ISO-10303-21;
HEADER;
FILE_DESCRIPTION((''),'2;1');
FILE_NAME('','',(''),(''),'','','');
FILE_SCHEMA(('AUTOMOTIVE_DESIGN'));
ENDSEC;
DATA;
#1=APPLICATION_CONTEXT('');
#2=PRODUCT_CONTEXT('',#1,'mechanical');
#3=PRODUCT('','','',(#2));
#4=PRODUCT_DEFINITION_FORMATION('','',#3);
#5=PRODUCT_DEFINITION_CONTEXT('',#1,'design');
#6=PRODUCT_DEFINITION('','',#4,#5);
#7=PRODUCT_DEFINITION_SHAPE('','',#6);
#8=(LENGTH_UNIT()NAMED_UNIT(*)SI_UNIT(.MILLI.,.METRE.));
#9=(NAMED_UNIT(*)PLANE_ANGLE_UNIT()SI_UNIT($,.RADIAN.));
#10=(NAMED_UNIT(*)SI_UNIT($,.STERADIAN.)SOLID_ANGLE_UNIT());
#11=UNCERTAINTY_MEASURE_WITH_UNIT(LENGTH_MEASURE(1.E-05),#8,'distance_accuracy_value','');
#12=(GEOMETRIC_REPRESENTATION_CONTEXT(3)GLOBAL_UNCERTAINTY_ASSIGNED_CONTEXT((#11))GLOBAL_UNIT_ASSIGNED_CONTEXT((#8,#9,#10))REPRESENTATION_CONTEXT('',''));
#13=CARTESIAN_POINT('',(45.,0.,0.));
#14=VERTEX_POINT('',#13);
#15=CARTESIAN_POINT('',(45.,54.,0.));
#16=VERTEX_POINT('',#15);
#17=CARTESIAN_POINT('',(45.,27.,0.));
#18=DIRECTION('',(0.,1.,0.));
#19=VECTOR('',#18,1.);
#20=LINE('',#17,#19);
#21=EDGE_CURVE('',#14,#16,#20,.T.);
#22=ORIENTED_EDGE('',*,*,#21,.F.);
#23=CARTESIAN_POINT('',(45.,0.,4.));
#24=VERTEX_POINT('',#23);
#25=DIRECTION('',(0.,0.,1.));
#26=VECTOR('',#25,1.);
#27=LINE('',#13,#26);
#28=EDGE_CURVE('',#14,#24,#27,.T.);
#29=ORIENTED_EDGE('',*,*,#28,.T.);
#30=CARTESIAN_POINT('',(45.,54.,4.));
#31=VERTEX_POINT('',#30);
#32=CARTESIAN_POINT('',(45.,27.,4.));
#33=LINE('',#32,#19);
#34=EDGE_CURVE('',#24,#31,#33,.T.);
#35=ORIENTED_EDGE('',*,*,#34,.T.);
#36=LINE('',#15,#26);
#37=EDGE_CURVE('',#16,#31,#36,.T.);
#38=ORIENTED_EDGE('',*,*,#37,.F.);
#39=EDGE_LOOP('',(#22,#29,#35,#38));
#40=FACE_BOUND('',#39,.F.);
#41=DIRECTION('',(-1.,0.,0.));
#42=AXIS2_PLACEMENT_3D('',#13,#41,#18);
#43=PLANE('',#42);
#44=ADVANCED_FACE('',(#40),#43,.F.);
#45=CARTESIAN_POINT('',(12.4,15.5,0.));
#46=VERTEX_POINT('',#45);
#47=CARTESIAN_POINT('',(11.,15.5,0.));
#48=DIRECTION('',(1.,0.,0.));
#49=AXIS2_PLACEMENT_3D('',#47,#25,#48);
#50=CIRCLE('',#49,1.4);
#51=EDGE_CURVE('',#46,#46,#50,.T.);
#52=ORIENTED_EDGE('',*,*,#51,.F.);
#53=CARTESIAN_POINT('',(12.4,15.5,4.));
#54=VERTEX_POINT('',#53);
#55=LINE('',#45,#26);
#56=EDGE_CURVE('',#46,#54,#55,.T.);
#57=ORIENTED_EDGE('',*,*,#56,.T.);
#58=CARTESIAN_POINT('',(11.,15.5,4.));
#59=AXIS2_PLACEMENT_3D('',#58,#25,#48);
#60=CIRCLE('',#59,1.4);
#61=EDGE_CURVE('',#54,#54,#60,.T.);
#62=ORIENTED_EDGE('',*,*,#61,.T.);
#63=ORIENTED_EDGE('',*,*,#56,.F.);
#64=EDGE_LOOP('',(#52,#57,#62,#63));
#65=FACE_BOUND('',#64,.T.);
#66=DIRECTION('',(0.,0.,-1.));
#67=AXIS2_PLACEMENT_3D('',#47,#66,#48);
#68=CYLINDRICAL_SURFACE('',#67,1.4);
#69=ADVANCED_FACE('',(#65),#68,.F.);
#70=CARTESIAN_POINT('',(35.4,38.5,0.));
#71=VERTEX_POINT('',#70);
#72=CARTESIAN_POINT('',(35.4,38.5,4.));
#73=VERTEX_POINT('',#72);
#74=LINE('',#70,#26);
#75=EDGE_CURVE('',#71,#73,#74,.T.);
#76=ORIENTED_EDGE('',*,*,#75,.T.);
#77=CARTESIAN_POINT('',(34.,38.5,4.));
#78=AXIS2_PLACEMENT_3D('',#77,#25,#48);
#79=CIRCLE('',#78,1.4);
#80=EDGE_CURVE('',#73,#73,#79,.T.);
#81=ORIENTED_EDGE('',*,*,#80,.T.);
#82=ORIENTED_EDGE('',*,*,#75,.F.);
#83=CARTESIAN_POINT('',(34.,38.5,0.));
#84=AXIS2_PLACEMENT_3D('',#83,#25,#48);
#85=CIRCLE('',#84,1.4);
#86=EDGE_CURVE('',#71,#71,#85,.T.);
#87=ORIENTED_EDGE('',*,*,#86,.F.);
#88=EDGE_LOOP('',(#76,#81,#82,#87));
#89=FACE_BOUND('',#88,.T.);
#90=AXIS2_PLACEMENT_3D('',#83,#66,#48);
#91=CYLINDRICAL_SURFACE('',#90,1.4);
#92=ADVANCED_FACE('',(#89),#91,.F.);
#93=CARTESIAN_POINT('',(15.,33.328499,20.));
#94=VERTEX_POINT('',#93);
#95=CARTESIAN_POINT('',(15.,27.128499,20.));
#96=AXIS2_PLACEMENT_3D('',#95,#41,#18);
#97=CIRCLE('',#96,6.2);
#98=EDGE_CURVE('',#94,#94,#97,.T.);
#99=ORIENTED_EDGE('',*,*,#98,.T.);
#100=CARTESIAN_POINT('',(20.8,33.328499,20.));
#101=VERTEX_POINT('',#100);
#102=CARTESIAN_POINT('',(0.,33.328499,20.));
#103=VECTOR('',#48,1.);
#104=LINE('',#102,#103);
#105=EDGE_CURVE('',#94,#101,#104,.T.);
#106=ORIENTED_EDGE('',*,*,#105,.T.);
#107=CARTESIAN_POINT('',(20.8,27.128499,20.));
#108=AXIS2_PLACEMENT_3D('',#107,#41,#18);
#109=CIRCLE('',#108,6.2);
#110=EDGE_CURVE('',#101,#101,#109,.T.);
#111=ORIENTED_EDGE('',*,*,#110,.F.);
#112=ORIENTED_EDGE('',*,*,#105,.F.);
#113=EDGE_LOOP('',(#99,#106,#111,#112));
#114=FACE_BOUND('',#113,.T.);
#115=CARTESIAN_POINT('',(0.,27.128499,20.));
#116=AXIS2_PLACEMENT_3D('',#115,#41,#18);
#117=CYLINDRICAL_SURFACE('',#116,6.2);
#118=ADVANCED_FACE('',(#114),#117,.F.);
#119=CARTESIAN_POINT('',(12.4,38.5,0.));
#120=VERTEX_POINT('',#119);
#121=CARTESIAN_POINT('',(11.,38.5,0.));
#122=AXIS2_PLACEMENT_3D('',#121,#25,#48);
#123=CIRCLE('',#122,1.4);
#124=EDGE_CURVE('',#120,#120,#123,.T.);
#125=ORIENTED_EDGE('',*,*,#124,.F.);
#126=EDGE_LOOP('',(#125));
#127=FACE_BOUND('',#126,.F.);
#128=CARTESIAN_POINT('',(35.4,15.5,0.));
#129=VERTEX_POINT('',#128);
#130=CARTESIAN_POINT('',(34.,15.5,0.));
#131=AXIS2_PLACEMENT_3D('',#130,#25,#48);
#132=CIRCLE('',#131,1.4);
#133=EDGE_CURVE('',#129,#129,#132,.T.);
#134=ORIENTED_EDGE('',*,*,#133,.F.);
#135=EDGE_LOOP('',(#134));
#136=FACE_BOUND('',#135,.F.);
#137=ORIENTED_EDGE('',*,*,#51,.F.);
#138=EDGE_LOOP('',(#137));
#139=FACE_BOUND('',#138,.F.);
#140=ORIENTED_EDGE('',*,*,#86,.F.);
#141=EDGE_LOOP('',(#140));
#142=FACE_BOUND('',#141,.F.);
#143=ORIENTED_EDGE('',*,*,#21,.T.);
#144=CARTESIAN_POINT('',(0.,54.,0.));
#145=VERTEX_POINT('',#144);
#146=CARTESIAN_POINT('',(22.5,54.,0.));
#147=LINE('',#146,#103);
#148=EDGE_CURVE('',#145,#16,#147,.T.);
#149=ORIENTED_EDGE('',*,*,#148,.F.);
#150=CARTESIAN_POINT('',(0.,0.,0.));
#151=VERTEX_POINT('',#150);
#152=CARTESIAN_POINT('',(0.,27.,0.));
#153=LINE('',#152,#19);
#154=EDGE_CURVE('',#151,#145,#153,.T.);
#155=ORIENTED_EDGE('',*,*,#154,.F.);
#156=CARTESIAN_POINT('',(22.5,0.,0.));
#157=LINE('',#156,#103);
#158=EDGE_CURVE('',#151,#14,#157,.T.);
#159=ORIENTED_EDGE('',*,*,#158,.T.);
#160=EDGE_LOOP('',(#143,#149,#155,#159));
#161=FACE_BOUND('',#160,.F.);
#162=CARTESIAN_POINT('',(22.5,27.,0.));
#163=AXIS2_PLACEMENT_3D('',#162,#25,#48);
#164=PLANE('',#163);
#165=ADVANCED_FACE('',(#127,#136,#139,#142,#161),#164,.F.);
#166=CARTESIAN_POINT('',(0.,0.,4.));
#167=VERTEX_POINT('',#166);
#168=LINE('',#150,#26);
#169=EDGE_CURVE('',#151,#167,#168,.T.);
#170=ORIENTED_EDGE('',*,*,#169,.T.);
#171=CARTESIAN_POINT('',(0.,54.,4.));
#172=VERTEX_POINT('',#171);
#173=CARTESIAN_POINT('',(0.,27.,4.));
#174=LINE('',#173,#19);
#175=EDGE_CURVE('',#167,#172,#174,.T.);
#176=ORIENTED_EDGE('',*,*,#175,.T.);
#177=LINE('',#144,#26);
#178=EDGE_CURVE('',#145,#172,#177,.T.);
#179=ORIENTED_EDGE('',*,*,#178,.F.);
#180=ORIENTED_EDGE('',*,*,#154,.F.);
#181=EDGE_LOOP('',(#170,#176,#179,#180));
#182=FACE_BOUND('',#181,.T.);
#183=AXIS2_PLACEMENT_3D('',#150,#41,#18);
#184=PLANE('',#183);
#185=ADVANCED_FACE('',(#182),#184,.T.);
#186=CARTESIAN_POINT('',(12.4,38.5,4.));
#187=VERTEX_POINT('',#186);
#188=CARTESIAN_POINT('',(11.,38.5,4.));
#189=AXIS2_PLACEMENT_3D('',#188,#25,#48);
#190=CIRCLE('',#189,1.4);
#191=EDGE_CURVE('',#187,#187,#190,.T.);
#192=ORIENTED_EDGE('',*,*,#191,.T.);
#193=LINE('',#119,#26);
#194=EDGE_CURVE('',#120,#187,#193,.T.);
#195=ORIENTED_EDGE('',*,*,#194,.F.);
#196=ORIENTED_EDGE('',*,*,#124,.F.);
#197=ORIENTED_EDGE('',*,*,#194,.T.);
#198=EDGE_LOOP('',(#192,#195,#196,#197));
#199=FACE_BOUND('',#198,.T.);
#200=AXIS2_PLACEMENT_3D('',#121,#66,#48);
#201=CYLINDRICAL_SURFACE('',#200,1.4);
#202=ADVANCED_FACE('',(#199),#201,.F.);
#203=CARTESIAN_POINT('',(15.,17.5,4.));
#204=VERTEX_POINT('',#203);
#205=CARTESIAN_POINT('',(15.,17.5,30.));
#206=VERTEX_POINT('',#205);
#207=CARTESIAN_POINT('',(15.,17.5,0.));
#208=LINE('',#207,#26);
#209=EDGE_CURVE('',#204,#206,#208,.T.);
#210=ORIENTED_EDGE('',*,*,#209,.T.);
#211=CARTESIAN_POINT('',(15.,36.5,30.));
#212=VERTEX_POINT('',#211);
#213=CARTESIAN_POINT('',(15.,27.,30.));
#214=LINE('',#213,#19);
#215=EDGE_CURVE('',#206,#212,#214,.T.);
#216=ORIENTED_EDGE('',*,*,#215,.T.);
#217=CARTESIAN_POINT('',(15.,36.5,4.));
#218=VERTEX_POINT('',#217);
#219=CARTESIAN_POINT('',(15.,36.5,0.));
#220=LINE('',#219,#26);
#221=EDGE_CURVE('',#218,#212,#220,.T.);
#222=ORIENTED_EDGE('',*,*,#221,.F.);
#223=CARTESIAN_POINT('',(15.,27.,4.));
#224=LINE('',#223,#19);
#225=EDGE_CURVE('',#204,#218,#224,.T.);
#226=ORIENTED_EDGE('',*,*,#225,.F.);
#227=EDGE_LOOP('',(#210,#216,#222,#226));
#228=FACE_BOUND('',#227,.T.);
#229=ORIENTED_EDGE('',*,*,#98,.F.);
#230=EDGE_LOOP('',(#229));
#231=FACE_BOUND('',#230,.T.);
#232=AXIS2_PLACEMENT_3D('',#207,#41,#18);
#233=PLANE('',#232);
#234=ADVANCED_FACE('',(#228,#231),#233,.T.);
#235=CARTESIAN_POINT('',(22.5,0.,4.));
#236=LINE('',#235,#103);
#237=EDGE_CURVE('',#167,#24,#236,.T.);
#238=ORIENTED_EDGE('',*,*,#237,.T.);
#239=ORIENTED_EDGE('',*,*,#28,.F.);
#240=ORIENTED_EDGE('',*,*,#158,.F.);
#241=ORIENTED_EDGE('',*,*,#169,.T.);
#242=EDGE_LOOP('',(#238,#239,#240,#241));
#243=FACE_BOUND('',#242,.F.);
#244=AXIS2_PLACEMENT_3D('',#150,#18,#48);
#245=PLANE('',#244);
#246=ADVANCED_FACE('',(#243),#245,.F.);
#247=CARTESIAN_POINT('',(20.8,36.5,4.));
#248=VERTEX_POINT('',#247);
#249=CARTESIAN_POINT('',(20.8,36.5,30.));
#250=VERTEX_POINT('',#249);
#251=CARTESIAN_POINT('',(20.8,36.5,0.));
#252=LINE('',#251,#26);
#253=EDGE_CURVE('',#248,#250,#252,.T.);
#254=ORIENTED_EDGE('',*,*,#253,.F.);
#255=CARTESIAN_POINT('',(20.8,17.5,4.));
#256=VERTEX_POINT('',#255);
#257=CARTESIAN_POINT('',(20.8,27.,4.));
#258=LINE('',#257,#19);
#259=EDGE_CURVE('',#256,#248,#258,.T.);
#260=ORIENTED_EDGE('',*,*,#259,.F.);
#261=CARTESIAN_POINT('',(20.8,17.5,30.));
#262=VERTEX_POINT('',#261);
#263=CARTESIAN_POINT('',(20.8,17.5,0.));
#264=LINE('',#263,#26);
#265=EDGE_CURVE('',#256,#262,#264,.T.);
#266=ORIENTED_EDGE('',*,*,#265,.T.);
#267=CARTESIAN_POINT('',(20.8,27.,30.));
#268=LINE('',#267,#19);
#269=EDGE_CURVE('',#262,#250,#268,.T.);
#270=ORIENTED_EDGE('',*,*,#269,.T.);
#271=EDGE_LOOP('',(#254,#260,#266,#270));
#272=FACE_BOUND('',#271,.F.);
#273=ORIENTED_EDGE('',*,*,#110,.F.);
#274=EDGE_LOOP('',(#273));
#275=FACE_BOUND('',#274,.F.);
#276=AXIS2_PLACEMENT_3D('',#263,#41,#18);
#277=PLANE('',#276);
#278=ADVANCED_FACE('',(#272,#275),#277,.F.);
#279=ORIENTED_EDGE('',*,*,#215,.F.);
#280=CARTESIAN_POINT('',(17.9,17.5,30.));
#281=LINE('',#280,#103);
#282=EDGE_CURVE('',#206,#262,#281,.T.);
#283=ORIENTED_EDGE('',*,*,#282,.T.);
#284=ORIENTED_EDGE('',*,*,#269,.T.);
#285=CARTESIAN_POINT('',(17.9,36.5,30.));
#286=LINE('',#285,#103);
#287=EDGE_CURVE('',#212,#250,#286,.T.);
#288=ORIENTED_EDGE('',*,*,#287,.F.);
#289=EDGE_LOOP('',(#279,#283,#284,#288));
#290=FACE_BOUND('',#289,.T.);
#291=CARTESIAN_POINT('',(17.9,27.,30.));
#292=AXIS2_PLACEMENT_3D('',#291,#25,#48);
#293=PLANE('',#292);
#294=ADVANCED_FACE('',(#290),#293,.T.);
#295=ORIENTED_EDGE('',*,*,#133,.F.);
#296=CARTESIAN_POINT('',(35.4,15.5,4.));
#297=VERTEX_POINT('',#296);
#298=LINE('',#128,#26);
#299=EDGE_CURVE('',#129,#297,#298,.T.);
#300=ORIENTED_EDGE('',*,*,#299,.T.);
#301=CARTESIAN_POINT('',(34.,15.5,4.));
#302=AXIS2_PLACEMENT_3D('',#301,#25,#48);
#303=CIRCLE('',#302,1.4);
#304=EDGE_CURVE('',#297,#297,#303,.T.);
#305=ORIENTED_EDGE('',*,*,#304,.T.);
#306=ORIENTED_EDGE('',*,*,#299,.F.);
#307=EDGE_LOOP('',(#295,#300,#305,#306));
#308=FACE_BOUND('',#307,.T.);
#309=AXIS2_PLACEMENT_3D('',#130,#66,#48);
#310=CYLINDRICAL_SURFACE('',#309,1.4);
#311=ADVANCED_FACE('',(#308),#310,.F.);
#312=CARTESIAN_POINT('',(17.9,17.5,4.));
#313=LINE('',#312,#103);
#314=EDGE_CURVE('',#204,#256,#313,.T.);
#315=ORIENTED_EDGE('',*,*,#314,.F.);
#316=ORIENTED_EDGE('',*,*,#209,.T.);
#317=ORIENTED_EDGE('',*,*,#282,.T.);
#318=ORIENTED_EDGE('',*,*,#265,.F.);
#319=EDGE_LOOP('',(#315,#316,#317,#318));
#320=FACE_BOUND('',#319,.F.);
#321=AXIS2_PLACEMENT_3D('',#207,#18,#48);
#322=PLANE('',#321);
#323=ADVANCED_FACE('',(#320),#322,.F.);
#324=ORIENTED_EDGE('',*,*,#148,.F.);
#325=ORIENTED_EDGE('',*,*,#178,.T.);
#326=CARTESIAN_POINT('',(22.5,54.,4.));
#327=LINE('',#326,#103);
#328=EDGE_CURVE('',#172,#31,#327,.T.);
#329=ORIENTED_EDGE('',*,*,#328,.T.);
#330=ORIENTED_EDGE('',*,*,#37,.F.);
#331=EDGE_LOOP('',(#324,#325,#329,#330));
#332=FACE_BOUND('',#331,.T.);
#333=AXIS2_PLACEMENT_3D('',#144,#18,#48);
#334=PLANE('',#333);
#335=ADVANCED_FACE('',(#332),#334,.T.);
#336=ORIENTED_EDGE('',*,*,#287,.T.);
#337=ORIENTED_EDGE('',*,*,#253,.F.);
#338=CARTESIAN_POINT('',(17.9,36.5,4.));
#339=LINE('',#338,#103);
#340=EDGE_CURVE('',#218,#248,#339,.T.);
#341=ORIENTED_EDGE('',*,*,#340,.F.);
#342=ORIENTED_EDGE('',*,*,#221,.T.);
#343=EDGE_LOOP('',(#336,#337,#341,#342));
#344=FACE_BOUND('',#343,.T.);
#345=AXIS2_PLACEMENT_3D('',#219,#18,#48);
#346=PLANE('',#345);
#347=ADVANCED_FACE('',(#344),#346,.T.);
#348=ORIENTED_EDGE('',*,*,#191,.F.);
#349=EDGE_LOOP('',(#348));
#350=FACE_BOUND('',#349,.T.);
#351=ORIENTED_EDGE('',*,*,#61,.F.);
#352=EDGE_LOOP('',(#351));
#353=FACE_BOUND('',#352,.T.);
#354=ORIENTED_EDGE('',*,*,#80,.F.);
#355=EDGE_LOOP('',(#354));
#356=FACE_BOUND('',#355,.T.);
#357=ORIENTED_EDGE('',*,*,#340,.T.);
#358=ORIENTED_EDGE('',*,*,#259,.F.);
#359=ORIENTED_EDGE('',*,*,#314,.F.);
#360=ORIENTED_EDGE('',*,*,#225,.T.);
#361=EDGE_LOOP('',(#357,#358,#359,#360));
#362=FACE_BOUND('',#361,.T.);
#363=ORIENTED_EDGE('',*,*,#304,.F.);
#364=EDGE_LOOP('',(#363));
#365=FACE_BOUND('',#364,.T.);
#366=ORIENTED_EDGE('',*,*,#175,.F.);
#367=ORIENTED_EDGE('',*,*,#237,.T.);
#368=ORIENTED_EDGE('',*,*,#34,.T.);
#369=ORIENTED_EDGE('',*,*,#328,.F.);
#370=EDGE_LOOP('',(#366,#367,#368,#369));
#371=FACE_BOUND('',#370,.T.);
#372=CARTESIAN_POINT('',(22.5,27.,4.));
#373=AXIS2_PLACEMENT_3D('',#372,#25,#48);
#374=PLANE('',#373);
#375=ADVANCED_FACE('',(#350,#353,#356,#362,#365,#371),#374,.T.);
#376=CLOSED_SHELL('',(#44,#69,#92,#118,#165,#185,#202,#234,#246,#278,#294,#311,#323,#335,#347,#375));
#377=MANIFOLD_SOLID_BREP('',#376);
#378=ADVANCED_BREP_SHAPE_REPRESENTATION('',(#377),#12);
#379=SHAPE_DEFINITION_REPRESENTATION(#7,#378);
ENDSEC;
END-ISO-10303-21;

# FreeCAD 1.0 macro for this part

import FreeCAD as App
import Part
import Sketcher
from FreeCAD import Vector
Q = App.Units.Quantity


def add_polygon(sketch, points):
    """Adds a closed chain of lines whose ends are joined by coincident constraints."""
    first, n = sketch.GeometryCount, len(points)
    for a, b in zip(points, points[1:] + points[:1]):
        sketch.addGeometry(Part.LineSegment(App.Vector(*a, 0), App.Vector(*b, 0)), False)
    for i in range(n):
        sketch.addConstraint(Sketcher.Constraint("Coincident", first + i, 2, first + (i + 1) % n, 1))

doc = App.newDocument("Part")
body = doc.addObject("PartDesign::Body", "Body")

sketch1 = body.newObject("Sketcher::SketchObject", "Sketch")
sketch1.AttachmentSupport = (doc.getObject("XY_Plane"), [""])
sketch1.MapMode = "FlatFace"
add_polygon(sketch1, [(0, 54), (0, 0), (45, 0), (45, 54)])
sketch1.addGeometry(Part.Circle(Vector(11, 15.5, 0), Vector(0, 0, 1), 1.4), False)
sketch1.addGeometry(Part.Circle(Vector(34, 15.5, 0), Vector(0, 0, 1), 1.4), False)
add_polygon(sketch1, [(20.8, 17.5), (15, 17.5), (15, 36.5), (20.8, 36.5)])
sketch1.addGeometry(Part.Circle(Vector(11, 38.5, 0), Vector(0, 0, 1), 1.4), False)
sketch1.addGeometry(Part.Circle(Vector(34, 38.5, 0), Vector(0, 0, 1), 1.4), False)
sketch1.addConstraint([
    Sketcher.Constraint("Vertical", 0),
    Sketcher.Constraint("Horizontal", 1),
    Sketcher.Constraint("Vertical", 2),
    Sketcher.Constraint("Horizontal", 3),
    Sketcher.Constraint("Horizontal", 6),
    Sketcher.Constraint("Vertical", 7),
    Sketcher.Constraint("Horizontal", 8),
    Sketcher.Constraint("Vertical", 9),
    Sketcher.Constraint("Coincident", 0, 2, -1, 1),
    Sketcher.Constraint("Equal", 4, 5),
    Sketcher.Constraint("Equal", 5, 10),
    Sketcher.Constraint("Equal", 10, 11),
    Sketcher.Constraint("Horizontal", 4, 3, 5, 3),
    Sketcher.Constraint("Horizontal", 10, 3, 11, 3),
    Sketcher.Constraint("Vertical", 4, 3, 10, 3),
    Sketcher.Constraint("Vertical", 5, 3, 11, 3),
    Sketcher.Constraint("Diameter", 4, Q("2.8 mm")),
    Sketcher.Constraint("DistanceX", 1, 1, 1, 2, Q("45 mm")),
    Sketcher.Constraint("DistanceY", 0, 2, 0, 1, Q("54 mm")),
    Sketcher.Constraint("DistanceY", 7, 1, 7, 2, Q("19 mm")),
    Sketcher.Constraint("DistanceX", 6, 2, 6, 1, Q("5.8 mm")),
    Sketcher.Constraint("DistanceX", -1, 1, 4, 3, Q("11 mm")),
    Sketcher.Constraint("DistanceX", -1, 1, 5, 3, Q("34 mm")),
    Sketcher.Constraint("DistanceX", -1, 1, 6, 2, Q("15 mm")),
    Sketcher.Constraint("DistanceY", 4, 3, 10, 3, Q("23 mm")),
    Sketcher.Constraint("DistanceY", 4, 3, 6, 2, Q("2 mm")),
    Sketcher.Constraint("DistanceY", -1, 1, 4, 3, Q("15.5 mm")),
])
pad1 = body.newObject("PartDesign::Pad", "Pad")
pad1.Profile = sketch1
pad1.Length = 4

sketch2 = body.newObject("Sketcher::SketchObject", "Sketch001")
sketch2.AttachmentSupport = (doc.getObject("XY_Plane"), [""])
sketch2.MapMode = "FlatFace"
add_polygon(sketch2, [(15, 36.5), (15, 17.5), (20.8, 17.5), (20.8, 36.5)])
sketch2.addConstraint([
    Sketcher.Constraint("Vertical", 0),
    Sketcher.Constraint("Horizontal", 1),
    Sketcher.Constraint("Vertical", 2),
    Sketcher.Constraint("Horizontal", 3),
    Sketcher.Constraint("DistanceY", 0, 2, 0, 1, Q("19 mm")),
    Sketcher.Constraint("DistanceX", 1, 1, 1, 2, Q("5.8 mm")),
    Sketcher.Constraint("DistanceX", -1, 1, 0, 2, Q("15 mm")),
    Sketcher.Constraint("DistanceY", -1, 1, 0, 2, Q("17.5 mm")),
])
pad2 = body.newObject("PartDesign::Pad", "Pad001")
pad2.Profile = sketch2
pad2.Length = 30

sketch3 = body.newObject("Sketcher::SketchObject", "Sketch002")
sketch3.AttachmentSupport = (doc.getObject("YZ_Plane"), [""])
sketch3.MapMode = "FlatFace"
sketch3.addGeometry(Part.Circle(Vector(27.128499, 20, 0), Vector(0, 0, 1), 6.2), False)
sketch3.addConstraint([
    Sketcher.Constraint("Diameter", 0, Q("12.4 mm")),
    Sketcher.Constraint("DistanceY", -1, 1, 0, 3, Q("20 mm")),
    Sketcher.Constraint("DistanceX", -1, 1, 0, 3, Q("27.128499 mm")),
])
pocket1 = body.newObject("PartDesign::Pocket", "Pocket")
pocket1.Profile = sketch3
pocket1.Length = 25
pocket1.Reversed = True

doc.recompute()
